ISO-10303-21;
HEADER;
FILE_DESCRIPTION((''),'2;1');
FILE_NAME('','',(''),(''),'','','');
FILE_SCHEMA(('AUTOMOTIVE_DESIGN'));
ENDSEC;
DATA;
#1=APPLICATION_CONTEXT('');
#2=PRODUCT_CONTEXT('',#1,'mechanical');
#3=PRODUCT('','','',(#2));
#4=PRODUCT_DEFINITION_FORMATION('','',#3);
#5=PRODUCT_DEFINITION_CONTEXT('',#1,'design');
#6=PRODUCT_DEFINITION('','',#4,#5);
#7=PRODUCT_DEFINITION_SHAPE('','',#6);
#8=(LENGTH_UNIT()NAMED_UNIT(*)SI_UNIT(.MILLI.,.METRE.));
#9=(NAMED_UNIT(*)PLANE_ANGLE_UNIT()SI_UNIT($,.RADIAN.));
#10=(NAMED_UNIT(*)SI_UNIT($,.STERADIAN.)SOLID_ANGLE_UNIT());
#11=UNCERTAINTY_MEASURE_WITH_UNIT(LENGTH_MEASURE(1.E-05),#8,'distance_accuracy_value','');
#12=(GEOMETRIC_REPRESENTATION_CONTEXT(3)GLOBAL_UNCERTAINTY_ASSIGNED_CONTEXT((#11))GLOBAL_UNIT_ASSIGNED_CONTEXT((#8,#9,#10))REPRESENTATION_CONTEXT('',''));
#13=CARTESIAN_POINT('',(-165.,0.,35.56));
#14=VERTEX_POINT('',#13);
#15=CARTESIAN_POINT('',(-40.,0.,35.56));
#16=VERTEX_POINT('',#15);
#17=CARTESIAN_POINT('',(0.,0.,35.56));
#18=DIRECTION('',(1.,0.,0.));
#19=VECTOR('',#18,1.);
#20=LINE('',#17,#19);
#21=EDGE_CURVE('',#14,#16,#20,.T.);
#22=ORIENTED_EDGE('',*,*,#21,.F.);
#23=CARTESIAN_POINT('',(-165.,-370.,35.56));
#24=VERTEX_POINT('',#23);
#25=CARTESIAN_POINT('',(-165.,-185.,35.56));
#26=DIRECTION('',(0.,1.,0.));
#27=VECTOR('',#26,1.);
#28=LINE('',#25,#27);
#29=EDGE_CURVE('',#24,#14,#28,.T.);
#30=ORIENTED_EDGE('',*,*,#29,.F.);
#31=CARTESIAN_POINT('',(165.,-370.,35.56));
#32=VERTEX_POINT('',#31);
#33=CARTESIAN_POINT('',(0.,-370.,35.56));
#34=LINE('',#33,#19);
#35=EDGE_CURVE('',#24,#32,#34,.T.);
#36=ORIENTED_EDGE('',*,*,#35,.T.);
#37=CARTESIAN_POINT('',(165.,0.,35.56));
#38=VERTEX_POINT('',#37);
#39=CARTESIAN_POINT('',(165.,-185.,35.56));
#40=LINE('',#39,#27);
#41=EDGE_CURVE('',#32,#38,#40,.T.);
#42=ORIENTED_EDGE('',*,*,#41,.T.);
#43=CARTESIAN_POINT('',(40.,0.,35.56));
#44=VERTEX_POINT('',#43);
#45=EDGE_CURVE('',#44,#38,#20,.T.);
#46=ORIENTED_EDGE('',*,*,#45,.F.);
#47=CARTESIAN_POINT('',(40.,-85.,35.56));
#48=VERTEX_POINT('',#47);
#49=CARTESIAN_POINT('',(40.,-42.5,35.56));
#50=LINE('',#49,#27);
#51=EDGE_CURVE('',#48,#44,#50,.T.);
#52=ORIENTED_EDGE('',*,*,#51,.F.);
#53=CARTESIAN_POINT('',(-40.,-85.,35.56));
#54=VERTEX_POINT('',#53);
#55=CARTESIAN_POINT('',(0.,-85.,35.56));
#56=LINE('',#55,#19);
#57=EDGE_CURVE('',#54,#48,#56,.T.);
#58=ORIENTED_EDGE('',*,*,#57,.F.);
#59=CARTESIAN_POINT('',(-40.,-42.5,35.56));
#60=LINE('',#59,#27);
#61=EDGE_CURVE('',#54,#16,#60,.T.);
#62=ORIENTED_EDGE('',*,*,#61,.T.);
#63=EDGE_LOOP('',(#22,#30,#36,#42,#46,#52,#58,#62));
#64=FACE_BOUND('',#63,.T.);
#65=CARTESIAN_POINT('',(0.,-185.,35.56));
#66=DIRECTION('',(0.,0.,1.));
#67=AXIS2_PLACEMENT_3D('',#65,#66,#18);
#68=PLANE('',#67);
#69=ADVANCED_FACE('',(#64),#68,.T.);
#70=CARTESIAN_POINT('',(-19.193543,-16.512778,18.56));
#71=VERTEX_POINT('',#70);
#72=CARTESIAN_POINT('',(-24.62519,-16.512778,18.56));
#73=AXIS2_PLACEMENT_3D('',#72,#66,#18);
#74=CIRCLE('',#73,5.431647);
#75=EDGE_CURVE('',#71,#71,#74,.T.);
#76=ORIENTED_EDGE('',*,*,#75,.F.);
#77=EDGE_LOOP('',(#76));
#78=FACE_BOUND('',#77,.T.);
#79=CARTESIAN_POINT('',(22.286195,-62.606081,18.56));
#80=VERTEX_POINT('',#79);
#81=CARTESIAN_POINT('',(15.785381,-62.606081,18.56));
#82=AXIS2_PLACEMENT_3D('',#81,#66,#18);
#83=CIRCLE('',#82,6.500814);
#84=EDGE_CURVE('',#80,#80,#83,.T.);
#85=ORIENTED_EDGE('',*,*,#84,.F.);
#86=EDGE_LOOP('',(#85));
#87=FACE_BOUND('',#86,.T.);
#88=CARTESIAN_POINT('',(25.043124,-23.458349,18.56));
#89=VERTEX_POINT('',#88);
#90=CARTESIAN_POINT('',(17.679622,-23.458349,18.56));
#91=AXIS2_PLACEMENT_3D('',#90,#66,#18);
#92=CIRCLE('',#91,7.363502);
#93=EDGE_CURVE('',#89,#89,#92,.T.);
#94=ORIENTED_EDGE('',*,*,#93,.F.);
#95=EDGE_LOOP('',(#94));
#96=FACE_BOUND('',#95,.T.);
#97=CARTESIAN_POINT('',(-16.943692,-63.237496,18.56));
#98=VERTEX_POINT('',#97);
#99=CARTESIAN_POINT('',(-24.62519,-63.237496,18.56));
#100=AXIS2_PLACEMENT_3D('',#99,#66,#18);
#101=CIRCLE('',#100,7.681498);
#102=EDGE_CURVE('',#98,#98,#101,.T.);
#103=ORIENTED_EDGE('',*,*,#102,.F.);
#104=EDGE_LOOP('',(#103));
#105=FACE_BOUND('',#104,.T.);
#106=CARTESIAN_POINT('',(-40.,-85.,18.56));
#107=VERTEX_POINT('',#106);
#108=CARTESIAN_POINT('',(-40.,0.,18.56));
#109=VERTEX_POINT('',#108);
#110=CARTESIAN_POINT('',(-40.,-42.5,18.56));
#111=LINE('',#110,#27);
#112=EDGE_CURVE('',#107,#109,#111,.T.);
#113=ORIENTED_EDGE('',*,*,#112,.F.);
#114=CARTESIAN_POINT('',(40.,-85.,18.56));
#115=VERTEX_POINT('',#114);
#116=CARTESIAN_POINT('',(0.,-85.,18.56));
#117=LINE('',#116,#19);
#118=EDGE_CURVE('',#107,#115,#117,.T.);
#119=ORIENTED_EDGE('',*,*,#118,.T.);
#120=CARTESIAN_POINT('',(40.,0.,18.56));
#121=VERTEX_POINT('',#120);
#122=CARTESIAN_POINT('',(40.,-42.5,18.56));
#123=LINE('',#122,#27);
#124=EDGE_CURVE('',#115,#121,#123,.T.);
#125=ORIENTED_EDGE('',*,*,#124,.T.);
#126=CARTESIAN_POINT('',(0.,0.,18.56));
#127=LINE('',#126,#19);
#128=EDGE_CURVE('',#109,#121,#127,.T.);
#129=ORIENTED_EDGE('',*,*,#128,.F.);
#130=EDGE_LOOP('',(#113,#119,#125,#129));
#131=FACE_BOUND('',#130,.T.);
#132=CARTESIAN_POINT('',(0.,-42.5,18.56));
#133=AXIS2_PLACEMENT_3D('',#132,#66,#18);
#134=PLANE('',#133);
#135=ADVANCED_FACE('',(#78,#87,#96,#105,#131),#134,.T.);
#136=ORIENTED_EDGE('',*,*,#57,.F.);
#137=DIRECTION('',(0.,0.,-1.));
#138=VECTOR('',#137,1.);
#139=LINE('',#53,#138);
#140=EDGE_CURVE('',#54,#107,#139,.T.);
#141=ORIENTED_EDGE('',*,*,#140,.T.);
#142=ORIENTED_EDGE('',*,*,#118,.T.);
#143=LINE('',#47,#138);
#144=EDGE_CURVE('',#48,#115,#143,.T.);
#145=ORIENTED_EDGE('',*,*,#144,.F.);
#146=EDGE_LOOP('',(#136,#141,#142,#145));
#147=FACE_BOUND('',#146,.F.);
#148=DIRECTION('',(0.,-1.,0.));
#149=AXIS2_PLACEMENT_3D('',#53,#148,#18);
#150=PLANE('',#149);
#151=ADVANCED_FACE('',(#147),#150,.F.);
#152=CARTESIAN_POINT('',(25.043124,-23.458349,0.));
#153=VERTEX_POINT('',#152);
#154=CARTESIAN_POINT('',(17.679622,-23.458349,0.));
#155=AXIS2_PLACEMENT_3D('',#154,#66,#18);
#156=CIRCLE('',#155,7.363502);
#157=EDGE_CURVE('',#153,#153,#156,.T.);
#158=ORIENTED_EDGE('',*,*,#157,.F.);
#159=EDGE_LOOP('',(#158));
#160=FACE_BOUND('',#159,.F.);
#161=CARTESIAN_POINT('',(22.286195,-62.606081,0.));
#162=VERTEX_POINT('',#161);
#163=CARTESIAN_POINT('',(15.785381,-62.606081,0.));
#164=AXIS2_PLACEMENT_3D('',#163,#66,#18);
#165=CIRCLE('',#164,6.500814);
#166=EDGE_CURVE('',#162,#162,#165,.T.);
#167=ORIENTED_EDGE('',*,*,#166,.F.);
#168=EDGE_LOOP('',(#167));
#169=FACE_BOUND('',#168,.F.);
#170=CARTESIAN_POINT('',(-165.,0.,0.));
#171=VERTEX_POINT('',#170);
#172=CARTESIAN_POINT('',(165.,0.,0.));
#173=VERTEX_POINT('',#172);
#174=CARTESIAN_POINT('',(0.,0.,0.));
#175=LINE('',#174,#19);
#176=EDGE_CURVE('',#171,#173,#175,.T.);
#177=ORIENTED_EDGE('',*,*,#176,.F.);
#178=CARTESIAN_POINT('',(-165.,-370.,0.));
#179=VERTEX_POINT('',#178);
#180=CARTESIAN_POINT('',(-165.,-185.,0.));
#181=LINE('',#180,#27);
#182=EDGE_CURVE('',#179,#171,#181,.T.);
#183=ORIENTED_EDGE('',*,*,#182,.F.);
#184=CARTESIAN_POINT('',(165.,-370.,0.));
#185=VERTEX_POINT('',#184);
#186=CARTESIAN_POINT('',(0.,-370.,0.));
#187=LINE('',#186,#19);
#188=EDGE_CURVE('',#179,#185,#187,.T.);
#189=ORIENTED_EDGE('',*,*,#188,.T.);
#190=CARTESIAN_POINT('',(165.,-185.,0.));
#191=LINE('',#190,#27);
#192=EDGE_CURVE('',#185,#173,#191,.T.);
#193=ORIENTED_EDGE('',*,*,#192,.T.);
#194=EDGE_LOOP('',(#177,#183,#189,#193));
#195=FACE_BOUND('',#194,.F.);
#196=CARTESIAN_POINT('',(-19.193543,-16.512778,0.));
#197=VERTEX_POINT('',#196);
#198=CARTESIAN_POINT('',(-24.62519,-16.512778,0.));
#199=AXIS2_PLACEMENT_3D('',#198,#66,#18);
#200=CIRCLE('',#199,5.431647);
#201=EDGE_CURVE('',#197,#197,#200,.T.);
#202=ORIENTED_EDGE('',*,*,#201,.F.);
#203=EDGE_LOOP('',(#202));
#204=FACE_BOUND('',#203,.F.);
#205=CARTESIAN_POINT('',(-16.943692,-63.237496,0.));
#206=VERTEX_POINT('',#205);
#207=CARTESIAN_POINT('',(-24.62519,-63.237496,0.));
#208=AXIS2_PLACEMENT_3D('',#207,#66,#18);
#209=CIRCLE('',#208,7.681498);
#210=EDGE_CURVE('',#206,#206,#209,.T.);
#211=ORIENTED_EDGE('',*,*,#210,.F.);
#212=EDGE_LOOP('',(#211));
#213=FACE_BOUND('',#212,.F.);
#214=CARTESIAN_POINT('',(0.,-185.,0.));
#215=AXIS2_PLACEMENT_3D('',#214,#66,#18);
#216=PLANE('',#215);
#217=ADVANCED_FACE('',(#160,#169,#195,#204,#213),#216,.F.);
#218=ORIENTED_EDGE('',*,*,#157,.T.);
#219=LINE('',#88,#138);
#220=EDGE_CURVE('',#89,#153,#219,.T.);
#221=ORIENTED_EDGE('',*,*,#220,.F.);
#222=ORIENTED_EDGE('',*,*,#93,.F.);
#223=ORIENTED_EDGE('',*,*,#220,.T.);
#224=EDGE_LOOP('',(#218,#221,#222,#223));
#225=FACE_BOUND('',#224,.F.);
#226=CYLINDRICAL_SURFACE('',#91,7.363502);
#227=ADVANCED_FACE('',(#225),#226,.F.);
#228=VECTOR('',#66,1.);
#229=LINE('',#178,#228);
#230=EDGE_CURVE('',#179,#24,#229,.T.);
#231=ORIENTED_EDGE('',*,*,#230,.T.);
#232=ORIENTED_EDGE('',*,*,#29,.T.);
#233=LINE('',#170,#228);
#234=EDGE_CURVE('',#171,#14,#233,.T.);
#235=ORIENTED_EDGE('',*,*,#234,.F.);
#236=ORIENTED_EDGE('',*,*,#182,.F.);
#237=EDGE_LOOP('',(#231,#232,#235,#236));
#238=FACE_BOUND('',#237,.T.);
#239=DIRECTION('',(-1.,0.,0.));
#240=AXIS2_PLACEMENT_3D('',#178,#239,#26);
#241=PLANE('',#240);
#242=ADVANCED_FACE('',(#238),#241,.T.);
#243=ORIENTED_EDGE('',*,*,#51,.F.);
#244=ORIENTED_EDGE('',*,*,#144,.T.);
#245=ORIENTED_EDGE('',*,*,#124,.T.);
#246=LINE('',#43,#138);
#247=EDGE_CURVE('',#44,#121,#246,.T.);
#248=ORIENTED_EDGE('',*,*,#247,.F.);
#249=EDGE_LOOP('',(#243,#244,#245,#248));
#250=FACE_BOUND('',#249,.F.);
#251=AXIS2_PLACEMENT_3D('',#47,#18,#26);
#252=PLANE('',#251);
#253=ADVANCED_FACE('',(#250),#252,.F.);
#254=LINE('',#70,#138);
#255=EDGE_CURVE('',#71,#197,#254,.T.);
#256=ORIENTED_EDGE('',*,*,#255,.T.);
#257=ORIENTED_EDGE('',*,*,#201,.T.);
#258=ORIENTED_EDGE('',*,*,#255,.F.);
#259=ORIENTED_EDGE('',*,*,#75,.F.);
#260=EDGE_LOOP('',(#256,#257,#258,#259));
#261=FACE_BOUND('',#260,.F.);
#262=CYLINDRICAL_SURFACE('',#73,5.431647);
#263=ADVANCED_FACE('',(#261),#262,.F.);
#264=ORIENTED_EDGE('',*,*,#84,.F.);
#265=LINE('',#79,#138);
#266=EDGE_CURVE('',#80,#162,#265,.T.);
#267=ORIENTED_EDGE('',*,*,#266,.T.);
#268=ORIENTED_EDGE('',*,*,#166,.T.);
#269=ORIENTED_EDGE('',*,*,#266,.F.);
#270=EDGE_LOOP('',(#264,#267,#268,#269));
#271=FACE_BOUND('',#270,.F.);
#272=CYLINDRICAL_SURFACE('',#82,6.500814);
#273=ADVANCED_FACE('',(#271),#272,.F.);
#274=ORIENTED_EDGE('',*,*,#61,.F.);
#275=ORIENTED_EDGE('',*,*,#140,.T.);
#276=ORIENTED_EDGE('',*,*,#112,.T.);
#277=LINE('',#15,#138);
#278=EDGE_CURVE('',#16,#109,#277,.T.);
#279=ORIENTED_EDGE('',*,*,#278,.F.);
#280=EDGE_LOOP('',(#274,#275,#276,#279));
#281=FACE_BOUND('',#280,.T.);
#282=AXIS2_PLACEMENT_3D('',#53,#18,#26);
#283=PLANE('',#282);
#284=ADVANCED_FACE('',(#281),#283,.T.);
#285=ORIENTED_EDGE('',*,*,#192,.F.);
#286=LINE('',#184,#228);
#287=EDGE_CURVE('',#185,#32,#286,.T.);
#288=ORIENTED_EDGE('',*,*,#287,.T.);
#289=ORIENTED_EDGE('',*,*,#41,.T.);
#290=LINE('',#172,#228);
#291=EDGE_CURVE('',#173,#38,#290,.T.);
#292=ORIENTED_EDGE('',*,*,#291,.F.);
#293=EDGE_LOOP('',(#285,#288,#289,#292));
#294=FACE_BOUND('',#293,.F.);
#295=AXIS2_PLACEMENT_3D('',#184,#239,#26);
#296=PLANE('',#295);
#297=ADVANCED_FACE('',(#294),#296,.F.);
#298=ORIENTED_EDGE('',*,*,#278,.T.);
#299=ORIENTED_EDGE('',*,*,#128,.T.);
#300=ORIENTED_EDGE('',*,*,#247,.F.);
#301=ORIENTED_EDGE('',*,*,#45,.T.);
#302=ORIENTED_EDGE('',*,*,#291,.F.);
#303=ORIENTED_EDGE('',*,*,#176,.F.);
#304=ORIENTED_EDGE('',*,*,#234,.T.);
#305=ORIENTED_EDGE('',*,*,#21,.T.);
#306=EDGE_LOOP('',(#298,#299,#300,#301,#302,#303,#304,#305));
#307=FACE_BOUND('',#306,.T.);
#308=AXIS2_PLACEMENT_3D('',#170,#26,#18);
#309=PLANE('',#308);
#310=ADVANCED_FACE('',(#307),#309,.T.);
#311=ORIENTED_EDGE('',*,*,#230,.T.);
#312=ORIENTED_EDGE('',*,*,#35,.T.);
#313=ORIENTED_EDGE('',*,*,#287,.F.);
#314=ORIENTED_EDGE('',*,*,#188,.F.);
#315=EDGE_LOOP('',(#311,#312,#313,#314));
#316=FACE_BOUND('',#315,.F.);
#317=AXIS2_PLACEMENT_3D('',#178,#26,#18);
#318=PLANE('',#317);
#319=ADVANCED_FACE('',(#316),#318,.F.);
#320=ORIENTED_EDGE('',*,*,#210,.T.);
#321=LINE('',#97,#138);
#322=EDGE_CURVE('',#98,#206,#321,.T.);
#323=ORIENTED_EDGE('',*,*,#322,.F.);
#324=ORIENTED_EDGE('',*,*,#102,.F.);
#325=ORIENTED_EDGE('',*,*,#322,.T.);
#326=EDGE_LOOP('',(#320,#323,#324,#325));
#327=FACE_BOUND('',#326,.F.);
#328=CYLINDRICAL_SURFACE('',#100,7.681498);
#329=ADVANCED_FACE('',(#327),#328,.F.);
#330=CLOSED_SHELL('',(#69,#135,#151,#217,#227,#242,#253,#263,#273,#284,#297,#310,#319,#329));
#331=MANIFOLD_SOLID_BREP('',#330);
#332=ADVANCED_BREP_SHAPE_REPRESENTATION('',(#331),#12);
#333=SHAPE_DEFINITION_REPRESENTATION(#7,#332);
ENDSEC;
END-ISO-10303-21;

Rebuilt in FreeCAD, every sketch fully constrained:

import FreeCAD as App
import Part
import Sketcher
Q = App.Units.Quantity

doc = App.newDocument("Part")
body = doc.addObject("PartDesign::Body", "Body")

# Sketch on XY plane
sketch1 = body.newObject("Sketcher::SketchObject", "Sketch")
sketch1.AttachmentSupport = (doc.getObject("XY_Plane"), [""])
sketch1.MapMode = "FlatFace"
sketch1.addGeometry(Part.LineSegment(App.Vector(-165, 0, 0), App.Vector(-165, -370, 0)), False)
sketch1.addGeometry(Part.LineSegment(App.Vector(-165, -370, 0), App.Vector(165, -370, 0)), False)
sketch1.addGeometry(Part.LineSegment(App.Vector(165, -370, 0), App.Vector(165, 0, 0)), False)
sketch1.addGeometry(Part.LineSegment(App.Vector(165, 0, 0), App.Vector(-165, 0, 0)), False)
sketch1.addConstraint(Sketcher.Constraint("Coincident", 0, 2, 1, 1))
sketch1.addConstraint(Sketcher.Constraint("Coincident", 1, 2, 2, 1))
sketch1.addConstraint(Sketcher.Constraint("Coincident", 2, 2, 3, 1))
sketch1.addConstraint(Sketcher.Constraint("Coincident", 3, 2, 0, 1))
sketch1.addConstraint(Sketcher.Constraint("Vertical", 0))
sketch1.addConstraint(Sketcher.Constraint("Horizontal", 1))
sketch1.addConstraint(Sketcher.Constraint("Vertical", 2))
sketch1.addConstraint(Sketcher.Constraint("Horizontal", 3))
sketch1.addConstraint(Sketcher.Constraint("Symmetric", 2, 2, 3, 2, -1, 1))
sketch1.addConstraint(Sketcher.Constraint("DistanceX", 1, 1, 1, 2, Q("330 mm")))
sketch1.addConstraint(Sketcher.Constraint("DistanceY", 0, 2, 0, 1, Q("370 mm")))
pad1 = body.newObject("PartDesign::Pad", "Pad")
pad1.Profile = sketch1
pad1.Length = 35.56

# Sketch on XY plane
sketch2 = body.newObject("Sketcher::SketchObject", "Sketch001")
sketch2.AttachmentSupport = (doc.getObject("XY_Plane"), [""])
sketch2.MapMode = "FlatFace"
sketch2.AttachmentOffset = App.Placement(App.Vector(0, 0, 35.56), App.Rotation())
sketch2.addGeometry(Part.LineSegment(App.Vector(-40, 0, 0), App.Vector(-40, -85, 0)), False)
sketch2.addGeometry(Part.LineSegment(App.Vector(-40, -85, 0), App.Vector(40, -85, 0)), False)
sketch2.addGeometry(Part.LineSegment(App.Vector(40, -85, 0), App.Vector(40, 0, 0)), False)
sketch2.addGeometry(Part.LineSegment(App.Vector(40, 0, 0), App.Vector(-40, 0, 0)), False)
sketch2.addConstraint(Sketcher.Constraint("Coincident", 0, 2, 1, 1))
sketch2.addConstraint(Sketcher.Constraint("Coincident", 1, 2, 2, 1))
sketch2.addConstraint(Sketcher.Constraint("Coincident", 2, 2, 3, 1))
sketch2.addConstraint(Sketcher.Constraint("Coincident", 3, 2, 0, 1))
sketch2.addConstraint(Sketcher.Constraint("Vertical", 0))
sketch2.addConstraint(Sketcher.Constraint("Horizontal", 1))
sketch2.addConstraint(Sketcher.Constraint("Vertical", 2))
sketch2.addConstraint(Sketcher.Constraint("Horizontal", 3))
sketch2.addConstraint(Sketcher.Constraint("Symmetric", 2, 2, 3, 2, -1, 1))
sketch2.addConstraint(Sketcher.Constraint("DistanceX", 1, 1, 1, 2, Q("80 mm")))
sketch2.addConstraint(Sketcher.Constraint("DistanceY", 0, 2, 0, 1, Q("85 mm")))
pocket1 = body.newObject("PartDesign::Pocket", "Pocket")
pocket1.Profile = sketch2
pocket1.Length = 17

# Sketch on XY plane
sketch3 = body.newObject("Sketcher::SketchObject", "Sketch002")
sketch3.AttachmentSupport = (doc.getObject("XY_Plane"), [""])
sketch3.MapMode = "FlatFace"
sketch3.AttachmentOffset = App.Placement(App.Vector(0, 0, 18.56), App.Rotation())
sketch3.addGeometry(Part.Circle(App.Vector(-25, -17, 0), App.Vector(0, 0, 1), 5), False)
sketch3.addGeometry(Part.Circle(App.Vector(18, -23, 0), App.Vector(0, 0, 1), 7), False)
sketch3.addGeometry(Part.Circle(App.Vector(-25, -63, 0), App.Vector(0, 0, 1), 8), False)
sketch3.addGeometry(Part.Circle(App.Vector(16, -63, 0), App.Vector(0, 0, 1), 7), False)
sketch3.addConstraint(Sketcher.Constraint("Vertical", 0, 3, 2, 3))
sketch3.addConstraint(Sketcher.Constraint("Diameter", 0, Q("10.863294 mm")))
sketch3.addConstraint(Sketcher.Constraint("Diameter", 1, Q("14.727004 mm")))
sketch3.addConstraint(Sketcher.Constraint("Diameter", 2, Q("15.362996 mm")))
sketch3.addConstraint(Sketcher.Constraint("Diameter", 3, Q("13.001628 mm")))
sketch3.addConstraint(Sketcher.Constraint("DistanceX", 0, 3, -1, 1, Q("24.62519 mm")))
sketch3.addConstraint(Sketcher.Constraint("DistanceY", 0, 3, -1, 1, Q("16.512778 mm")))
sketch3.addConstraint(Sketcher.Constraint("DistanceX", -1, 1, 1, 3, Q("17.679622 mm")))
sketch3.addConstraint(Sketcher.Constraint("DistanceY", 1, 3, -1, 1, Q("23.458349 mm")))
sketch3.addConstraint(Sketcher.Constraint("DistanceX", -1, 1, 3, 3, Q("15.785381 mm")))
sketch3.addConstraint(Sketcher.Constraint("DistanceY", 3, 3, -1, 1, Q("62.606081 mm")))
sketch3.addConstraint(Sketcher.Constraint("DistanceY", 2, 3, -1, 1, Q("63.237496 mm")))
pocket2 = body.newObject("PartDesign::Pocket", "Pocket001")
pocket2.Profile = sketch3
pocket2.Type = "ThroughAll"

doc.recompute()
